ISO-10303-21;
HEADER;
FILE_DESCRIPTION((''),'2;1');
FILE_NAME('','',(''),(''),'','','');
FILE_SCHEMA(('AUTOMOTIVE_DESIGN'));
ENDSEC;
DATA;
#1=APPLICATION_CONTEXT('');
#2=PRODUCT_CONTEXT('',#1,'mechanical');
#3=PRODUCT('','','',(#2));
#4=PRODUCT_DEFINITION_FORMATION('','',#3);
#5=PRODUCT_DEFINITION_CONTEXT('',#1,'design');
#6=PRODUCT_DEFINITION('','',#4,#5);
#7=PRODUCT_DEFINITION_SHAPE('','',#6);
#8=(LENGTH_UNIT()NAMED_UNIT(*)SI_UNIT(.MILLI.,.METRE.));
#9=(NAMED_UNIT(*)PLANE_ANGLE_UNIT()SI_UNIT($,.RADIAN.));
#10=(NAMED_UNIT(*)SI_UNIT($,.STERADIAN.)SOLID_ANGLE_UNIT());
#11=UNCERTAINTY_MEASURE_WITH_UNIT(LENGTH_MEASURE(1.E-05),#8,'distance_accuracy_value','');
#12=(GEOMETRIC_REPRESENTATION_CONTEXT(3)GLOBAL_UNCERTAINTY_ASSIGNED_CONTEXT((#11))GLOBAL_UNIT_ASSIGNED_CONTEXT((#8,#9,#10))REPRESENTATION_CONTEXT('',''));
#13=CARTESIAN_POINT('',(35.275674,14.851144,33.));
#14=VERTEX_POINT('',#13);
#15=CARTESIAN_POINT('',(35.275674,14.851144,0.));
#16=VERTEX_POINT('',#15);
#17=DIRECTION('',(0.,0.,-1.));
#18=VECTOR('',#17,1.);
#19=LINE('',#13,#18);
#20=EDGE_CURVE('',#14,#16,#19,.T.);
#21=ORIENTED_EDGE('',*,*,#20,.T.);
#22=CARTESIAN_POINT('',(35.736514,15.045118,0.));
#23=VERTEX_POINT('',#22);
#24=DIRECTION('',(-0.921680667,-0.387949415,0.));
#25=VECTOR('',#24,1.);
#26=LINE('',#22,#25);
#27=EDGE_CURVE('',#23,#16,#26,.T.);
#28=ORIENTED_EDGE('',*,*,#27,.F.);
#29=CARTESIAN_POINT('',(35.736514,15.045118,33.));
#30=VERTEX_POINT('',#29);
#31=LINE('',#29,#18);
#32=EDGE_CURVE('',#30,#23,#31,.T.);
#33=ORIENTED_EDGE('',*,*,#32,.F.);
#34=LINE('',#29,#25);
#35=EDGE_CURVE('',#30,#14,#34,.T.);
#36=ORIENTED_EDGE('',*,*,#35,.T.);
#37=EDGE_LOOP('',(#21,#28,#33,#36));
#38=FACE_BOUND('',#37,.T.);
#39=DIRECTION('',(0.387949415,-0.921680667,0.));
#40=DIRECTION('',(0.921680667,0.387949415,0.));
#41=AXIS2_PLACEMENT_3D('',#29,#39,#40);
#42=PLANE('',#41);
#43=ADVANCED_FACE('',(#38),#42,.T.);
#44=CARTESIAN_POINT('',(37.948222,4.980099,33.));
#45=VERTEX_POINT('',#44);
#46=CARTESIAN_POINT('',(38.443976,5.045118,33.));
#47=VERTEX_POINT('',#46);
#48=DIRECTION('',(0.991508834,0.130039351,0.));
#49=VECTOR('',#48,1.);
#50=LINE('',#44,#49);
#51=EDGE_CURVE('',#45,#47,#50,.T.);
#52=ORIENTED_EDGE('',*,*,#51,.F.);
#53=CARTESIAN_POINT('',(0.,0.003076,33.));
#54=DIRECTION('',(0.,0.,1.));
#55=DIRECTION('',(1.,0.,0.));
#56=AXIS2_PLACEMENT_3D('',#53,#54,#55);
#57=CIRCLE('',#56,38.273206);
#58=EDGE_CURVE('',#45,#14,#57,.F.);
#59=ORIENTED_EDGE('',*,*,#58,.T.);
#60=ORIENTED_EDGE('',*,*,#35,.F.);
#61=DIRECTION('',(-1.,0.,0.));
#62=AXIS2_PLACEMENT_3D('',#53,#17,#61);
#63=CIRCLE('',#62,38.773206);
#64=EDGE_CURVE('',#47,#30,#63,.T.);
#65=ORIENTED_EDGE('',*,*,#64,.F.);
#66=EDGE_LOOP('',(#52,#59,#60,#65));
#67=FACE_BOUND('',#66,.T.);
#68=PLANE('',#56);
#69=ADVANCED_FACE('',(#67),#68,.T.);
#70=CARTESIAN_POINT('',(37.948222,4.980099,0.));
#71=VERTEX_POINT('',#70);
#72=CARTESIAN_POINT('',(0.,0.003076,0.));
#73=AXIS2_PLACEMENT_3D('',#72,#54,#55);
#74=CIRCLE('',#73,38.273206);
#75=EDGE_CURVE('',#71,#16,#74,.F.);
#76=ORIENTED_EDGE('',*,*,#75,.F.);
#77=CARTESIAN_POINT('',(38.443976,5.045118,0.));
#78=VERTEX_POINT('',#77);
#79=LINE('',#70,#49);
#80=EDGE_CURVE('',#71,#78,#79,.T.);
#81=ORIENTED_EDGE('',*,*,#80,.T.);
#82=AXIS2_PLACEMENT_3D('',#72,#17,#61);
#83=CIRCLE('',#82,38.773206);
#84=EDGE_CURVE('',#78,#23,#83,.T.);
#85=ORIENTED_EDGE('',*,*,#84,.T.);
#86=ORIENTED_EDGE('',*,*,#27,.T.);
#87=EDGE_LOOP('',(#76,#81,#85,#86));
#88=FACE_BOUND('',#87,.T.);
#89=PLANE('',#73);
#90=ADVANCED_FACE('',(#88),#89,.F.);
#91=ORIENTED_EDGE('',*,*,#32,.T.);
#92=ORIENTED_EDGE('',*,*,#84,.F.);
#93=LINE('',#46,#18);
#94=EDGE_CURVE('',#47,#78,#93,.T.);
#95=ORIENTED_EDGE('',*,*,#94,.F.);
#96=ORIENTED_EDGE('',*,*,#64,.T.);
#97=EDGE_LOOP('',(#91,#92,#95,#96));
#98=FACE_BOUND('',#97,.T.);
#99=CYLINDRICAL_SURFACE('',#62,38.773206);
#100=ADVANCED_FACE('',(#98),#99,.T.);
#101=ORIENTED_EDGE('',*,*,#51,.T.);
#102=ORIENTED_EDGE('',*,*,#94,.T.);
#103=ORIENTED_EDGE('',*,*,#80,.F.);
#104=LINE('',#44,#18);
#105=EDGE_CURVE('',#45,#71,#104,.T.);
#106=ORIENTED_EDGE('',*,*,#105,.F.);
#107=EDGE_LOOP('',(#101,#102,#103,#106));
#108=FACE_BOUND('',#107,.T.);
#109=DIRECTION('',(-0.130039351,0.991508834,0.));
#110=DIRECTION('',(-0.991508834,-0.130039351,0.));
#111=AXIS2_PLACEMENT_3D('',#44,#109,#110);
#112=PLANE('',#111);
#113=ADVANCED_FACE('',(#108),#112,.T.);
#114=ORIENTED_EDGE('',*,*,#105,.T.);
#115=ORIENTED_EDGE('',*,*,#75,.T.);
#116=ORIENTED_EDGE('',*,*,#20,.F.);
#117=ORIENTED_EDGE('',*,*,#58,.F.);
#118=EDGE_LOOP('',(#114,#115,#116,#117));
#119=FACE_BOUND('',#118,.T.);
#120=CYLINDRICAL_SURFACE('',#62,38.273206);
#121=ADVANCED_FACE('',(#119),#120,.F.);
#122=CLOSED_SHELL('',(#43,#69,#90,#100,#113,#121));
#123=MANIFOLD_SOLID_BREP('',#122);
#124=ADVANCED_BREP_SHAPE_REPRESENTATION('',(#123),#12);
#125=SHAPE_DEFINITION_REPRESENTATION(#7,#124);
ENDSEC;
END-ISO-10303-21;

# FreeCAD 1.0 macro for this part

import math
import FreeCAD as App
import Part
import Sketcher

V = App.Vector
Q = App.Units.Quantity

doc = App.newDocument("Part")
body = doc.addObject("PartDesign::Body", "Body")

# Sketch on XY plane
sketch1 = body.newObject("Sketcher::SketchObject", "Sketch")
sketch1.AttachmentSupport = (doc.getObject("XY_Plane"), [""])
sketch1.MapMode = "FlatFace"
sketch1.addGeometry([
    Part.ArcOfCircle(Part.Circle(V(0, 0, 0), V(0, 0, 1), 38.77), math.radians(23), math.radians(367)),
    Part.LineSegment(V(38.44, 5.05, 0), V(37.95, 4.98, 0)),
    Part.ArcOfCircle(Part.Circle(V(0, 0, 0), V(0, 0, 1), 38.27), math.radians(23), math.radians(367)),
    Part.LineSegment(V(35.28, 14.85, 0), V(35.74, 15.05, 0)),
], False)
sketch1.addConstraint([
    Sketcher.Constraint("Coincident", 0, 2, 1, 1),
    Sketcher.Constraint("Coincident", 1, 2, 2, 2),
    Sketcher.Constraint("Coincident", 2, 1, 3, 1),
    Sketcher.Constraint("Coincident", 3, 2, 0, 1),
    Sketcher.Constraint("Coincident", 2, 3, 0, 3),
    Sketcher.Constraint("PointOnObject", 0, 3, -2),
    Sketcher.Constraint("DistanceY", 0, 2, 3, 2, Q("10 mm")),
    Sketcher.Constraint("Distance", 1, Q("0.5 mm")),
    Sketcher.Constraint("Radius", 0, Q("38.773206 mm")),
    Sketcher.Constraint("DistanceY", -1, 1, 1, 2, Q("4.980099 mm")),
    Sketcher.Constraint("DistanceY", -1, 1, 0, 2, Q("5.045118 mm")),
    Sketcher.Constraint("DistanceX", -1, 1, 1, 2, Q("37.948222 mm")),
    Sketcher.Constraint("DistanceX", 2, 1, 3, 2, Q("0.46084 mm")),
])
pad1 = body.newObject("PartDesign::Pad", "Pad")
pad1.Profile = sketch1
pad1.Length = 33

doc.recompute()
